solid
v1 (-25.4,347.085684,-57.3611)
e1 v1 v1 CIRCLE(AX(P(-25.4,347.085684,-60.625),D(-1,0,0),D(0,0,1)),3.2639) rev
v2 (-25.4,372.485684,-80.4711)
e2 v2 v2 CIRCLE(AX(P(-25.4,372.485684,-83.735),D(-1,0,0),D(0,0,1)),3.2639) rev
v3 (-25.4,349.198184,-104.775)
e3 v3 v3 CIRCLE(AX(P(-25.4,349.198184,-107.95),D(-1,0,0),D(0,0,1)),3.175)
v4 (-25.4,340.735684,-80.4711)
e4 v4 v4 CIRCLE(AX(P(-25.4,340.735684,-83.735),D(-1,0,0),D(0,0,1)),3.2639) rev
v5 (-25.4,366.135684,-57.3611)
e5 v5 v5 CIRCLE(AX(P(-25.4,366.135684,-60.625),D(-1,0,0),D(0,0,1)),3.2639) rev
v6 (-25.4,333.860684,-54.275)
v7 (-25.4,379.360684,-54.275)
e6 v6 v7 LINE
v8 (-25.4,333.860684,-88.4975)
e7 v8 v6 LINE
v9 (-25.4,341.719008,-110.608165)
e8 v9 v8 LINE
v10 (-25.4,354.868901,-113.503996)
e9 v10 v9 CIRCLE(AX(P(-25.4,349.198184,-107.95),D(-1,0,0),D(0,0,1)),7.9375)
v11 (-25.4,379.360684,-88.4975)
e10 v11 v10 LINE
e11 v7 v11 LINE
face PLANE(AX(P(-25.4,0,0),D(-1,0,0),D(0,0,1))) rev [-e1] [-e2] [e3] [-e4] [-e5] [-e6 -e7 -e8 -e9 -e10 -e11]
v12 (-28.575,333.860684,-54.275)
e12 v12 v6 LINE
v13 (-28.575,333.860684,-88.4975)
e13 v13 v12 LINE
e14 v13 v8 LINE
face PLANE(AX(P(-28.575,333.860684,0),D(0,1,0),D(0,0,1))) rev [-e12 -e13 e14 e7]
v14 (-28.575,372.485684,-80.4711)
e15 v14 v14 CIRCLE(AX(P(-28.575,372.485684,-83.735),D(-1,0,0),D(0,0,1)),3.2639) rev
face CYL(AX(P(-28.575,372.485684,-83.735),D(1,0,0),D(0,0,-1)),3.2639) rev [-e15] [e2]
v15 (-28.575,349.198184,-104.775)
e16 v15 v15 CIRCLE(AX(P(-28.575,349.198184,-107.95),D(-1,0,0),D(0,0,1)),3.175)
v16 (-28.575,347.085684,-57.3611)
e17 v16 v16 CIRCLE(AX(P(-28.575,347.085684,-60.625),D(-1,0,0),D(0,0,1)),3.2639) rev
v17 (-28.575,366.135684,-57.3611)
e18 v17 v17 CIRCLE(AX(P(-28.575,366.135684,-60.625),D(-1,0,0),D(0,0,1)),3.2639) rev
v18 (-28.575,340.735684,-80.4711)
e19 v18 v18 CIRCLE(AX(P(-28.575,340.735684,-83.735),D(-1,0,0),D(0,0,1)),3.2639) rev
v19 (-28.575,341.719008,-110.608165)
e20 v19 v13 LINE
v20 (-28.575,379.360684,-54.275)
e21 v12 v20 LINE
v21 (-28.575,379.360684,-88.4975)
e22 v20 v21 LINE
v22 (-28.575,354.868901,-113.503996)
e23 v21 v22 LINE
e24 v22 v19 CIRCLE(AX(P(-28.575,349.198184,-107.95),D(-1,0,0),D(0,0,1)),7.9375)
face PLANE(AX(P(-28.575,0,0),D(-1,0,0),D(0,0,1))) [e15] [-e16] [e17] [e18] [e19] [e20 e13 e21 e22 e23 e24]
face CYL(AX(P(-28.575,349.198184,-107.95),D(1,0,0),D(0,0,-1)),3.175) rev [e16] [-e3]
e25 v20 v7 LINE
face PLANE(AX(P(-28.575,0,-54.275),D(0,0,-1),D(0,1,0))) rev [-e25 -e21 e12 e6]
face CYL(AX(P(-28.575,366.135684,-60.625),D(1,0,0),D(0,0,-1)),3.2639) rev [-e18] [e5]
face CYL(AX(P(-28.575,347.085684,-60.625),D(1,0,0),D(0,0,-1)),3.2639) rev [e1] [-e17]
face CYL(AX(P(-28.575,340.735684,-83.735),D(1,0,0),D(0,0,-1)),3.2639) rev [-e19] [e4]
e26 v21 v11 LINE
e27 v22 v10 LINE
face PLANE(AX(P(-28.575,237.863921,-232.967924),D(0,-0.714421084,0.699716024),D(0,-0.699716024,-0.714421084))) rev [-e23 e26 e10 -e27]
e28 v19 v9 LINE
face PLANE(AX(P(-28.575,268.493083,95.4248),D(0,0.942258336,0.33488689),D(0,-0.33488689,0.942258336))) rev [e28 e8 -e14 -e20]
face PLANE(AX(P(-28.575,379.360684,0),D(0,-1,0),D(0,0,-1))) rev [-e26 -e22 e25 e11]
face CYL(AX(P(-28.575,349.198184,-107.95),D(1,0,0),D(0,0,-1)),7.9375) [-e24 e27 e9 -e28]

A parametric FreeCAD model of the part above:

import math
import FreeCAD as App
import Part
import Sketcher
from FreeCAD import Vector
Q = App.Units.Quantity

doc = App.newDocument("Part")
body = doc.addObject("PartDesign::Body", "Body")

sketch1 = body.newObject("Sketcher::SketchObject", "Sketch")
sketch1.AttachmentSupport = (doc.getObject("YZ_Plane"), [""])
sketch1.MapMode = "FlatFace"
sketch1.AttachmentOffset = App.Placement(Vector(0, 0, -1 * 25.4), App.Rotation())
sketch1.addGeometry([
    Part.LineSegment(Vector(379.4, -88.5, 0), Vector(354.9, -113.5, 0)),
    Part.ArcOfCircle(Part.Circle(Vector(349.2, -107.9, 0), Vector(0, 0, 1), 7.9), math.radians(-160), math.radians(-44)),
    Part.LineSegment(Vector(341.7, -110.6, 0), Vector(333.9, -88.5, 0)),
    Part.LineSegment(Vector(333.9, -88.5, 0), Vector(333.9, -54.3, 0)),
    Part.LineSegment(Vector(333.9, -54.3, 0), Vector(379.4, -54.3, 0)),
    Part.LineSegment(Vector(379.4, -54.3, 0), Vector(379.4, -88.5, 0)),
    Part.Circle(Vector(349.2, -108, 0), Vector(0, 0, 1), 3.2),
    Part.Circle(Vector(366.1, -60.6, 0), Vector(0, 0, 1), 3.3),
    Part.Circle(Vector(372.5, -83.7, 0), Vector(0, 0, 1), 3.3),
    Part.Circle(Vector(340.7, -83.7, 0), Vector(0, 0, 1), 3.3),
    Part.Circle(Vector(347.1, -60.6, 0), Vector(0, 0, 1), 3.3),
], False)
sketch1.addConstraint([
    Sketcher.Constraint("Tangent", 0, 2, 1, 2),
    Sketcher.Constraint("Tangent", 1, 1, 2, 1),
    Sketcher.Constraint("Coincident", 2, 2, 3, 1),
    Sketcher.Constraint("Coincident", 3, 2, 4, 1),
    Sketcher.Constraint("Coincident", 4, 2, 5, 1),
    Sketcher.Constraint("Coincident", 5, 2, 0, 1),
    Sketcher.Constraint("Vertical", 3),
    Sketcher.Constraint("Horizontal", 4),
    Sketcher.Constraint("Vertical", 5),
    Sketcher.Constraint("Coincident", 6, 3, 1, 3),
    Sketcher.Constraint("Equal", 7, 8),
    Sketcher.Constraint("Equal", 8, 9),
    Sketcher.Constraint("Equal", 9, 10),
    Sketcher.Constraint("Horizontal", 8, 3, 9, 3),
    Sketcher.Constraint("Horizontal", 7, 3, 10, 3),
    Sketcher.Constraint("Horizontal", 2, 2, 5, 2),
    Sketcher.Constraint("Diameter", 6, Q("0.25 in")),
    Sketcher.Constraint("Diameter", 7, Q("0.257 in")),
    Sketcher.Constraint("Radius", 1, Q("0.3125 in")),
    Sketcher.Constraint("DistanceX", 9, 3, 7, 3, Q("1 in")),
    Sketcher.Constraint("DistanceX", 10, 3, 8, 3, Q("1 in")),
    Sketcher.Constraint("DistanceY", 1, 3, -1, 1, Q("4.25 in")),
    Sketcher.Constraint("DistanceX", 7, 3, 8, 3, Q("0.25 in")),
    Sketcher.Constraint("DistanceY", 10, 3, 3, 2, Q("0.25 in")),
    Sketcher.Constraint("DistanceY", 2, 2, 9, 3, Q("0.1875 in")),
    Sketcher.Constraint("DistanceX", 1, 3, 5, 2, Q("1.1875 in")),
    Sketcher.Constraint("DistanceX", 4, 1, 4, 2, 45.5),
    Sketcher.Constraint("DistanceY", 3, 1, 3, 2, 34.2225),
    Sketcher.Constraint("DistanceY", 7, 3, -1, 1, 60.625),
    Sketcher.Constraint("DistanceX", -1, 1, 0, 2, 354.868901),
    Sketcher.Constraint("DistanceX", 1, 3, 7, 3, 16.9375),
])
pad1 = body.newObject("PartDesign::Pad", "Pad")
pad1.Profile = sketch1
pad1.Length = Q("0.125 in")
pad1.Reversed = True

doc.recompute()
